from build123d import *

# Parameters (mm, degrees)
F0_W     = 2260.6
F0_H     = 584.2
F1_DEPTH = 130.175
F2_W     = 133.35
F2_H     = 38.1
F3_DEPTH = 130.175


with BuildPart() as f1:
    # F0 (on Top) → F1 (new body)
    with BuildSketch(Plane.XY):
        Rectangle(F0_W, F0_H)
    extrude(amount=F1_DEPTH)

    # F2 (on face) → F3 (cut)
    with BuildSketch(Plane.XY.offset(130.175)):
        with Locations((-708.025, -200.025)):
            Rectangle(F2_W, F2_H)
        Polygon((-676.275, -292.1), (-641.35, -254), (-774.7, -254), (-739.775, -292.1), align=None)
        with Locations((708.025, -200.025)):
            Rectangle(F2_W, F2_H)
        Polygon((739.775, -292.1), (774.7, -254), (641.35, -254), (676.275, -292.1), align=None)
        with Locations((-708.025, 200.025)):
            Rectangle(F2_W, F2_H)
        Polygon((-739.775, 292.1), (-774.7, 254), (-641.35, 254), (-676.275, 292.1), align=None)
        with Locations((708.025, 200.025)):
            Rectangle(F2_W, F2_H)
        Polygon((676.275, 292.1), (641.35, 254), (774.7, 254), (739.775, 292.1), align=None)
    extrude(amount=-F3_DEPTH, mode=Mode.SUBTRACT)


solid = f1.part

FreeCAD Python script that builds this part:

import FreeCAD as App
import Part
import Sketcher
from FreeCAD import Vector
Q = App.Units.Quantity


def add_polygon(sketch, points):
    """Adds a closed chain of lines whose ends are joined by coincident constraints."""
    first, n = sketch.GeometryCount, len(points)
    for a, b in zip(points, points[1:] + points[:1]):
        sketch.addGeometry(Part.LineSegment(App.Vector(*a, 0), App.Vector(*b, 0)), False)
    for i in range(n):
        sketch.addConstraint(Sketcher.Constraint("Coincident", first + i, 2, first + (i + 1) % n, 1))

doc = App.newDocument("Part")
body = doc.addObject("PartDesign::Body", "Body")

# Sketch on XY plane
sketch1 = body.newObject("Sketcher::SketchObject", "Sketch")
sketch1.AttachmentSupport = (doc.getObject("XY_Plane"), [""])
sketch1.MapMode = "FlatFace"
add_polygon(sketch1, [(-1130.3, 292.1), (-1130.3, -292.1), (1130.3, -292.1), (1130.3, 292.1)])  # lines 0-3
sketch1.addConstraint([
    Sketcher.Constraint("Vertical", 0),
    Sketcher.Constraint("Horizontal", 1),
    Sketcher.Constraint("Vertical", 2),
    Sketcher.Constraint("Horizontal", 3),
    Sketcher.Constraint("Symmetric", 0, 2, 2, 2, -1, 1),
    Sketcher.Constraint("DistanceX", 1, 1, 1, 2, Q("89 in")),
    Sketcher.Constraint("DistanceY", 0, 2, 0, 1, Q("23 in")),
])
pad1 = body.newObject("PartDesign::Pad", "Pad")
pad1.Profile = sketch1
pad1.Length = Q("5.125 in")

# Sketch on XY plane
sketch2 = body.newObject("Sketcher::SketchObject", "Sketch001")
sketch2.AttachmentSupport = (doc.getObject("XY_Plane"), [""])
sketch2.MapMode = "FlatFace"
sketch2.AttachmentOffset = App.Placement(Vector(0, 0, 5.125 * 25.4), App.Rotation())
add_polygon(sketch2, [(-774.7, -180.975), (-774.7, -219.075), (-641.35, -219.075), (-641.35, -180.975)])  # lines 0-3
add_polygon(sketch2, [(-676.275, -292.1), (-641.35, -254), (-774.7, -254), (-739.775, -292.1)])  # lines 4-7
add_polygon(sketch2, [(641.35, -180.975), (641.35, -219.075), (774.7, -219.075), (774.7, -180.975)])  # lines 8-11
add_polygon(sketch2, [(739.775, -292.1), (774.7, -254), (641.35, -254), (676.275, -292.1)])  # lines 12-15
add_polygon(sketch2, [(-774.7, 219.075), (-774.7, 180.975), (-641.35, 180.975), (-641.35, 219.075)])  # lines 16-19
add_polygon(sketch2, [(-739.775, 292.1), (-774.7, 254), (-641.35, 254), (-676.275, 292.1)])  # lines 20-23
add_polygon(sketch2, [(641.35, 219.075), (641.35, 180.975), (774.7, 180.975), (774.7, 219.075)])  # lines 24-27
add_polygon(sketch2, [(676.275, 292.1), (641.35, 254), (774.7, 254), (739.775, 292.1)])  # lines 28-31
sketch2.addConstraint([
    Sketcher.Constraint("Vertical", 0),
    Sketcher.Constraint("Horizontal", 1),
    Sketcher.Constraint("Vertical", 2),
    Sketcher.Constraint("Horizontal", 3),
    Sketcher.Constraint("Horizontal", 5),
    Sketcher.Constraint("Horizontal", 7),
    Sketcher.Constraint("Vertical", 8),
    Sketcher.Constraint("Horizontal", 9),
    Sketcher.Constraint("Vertical", 10),
    Sketcher.Constraint("Horizontal", 11),
    Sketcher.Constraint("Horizontal", 13),
    Sketcher.Constraint("Horizontal", 15),
    Sketcher.Constraint("Vertical", 16),
    Sketcher.Constraint("Horizontal", 17),
    Sketcher.Constraint("Vertical", 18),
    Sketcher.Constraint("Horizontal", 19),
    Sketcher.Constraint("Horizontal", 21),
    Sketcher.Constraint("Horizontal", 23),
    Sketcher.Constraint("Vertical", 24),
    Sketcher.Constraint("Horizontal", 25),
    Sketcher.Constraint("Vertical", 26),
    Sketcher.Constraint("Horizontal", 27),
    Sketcher.Constraint("Horizontal", 29),
    Sketcher.Constraint("Horizontal", 31),
    Sketcher.Constraint("Symmetric", 10, 2, 16, 2, -1, 1),
    Sketcher.Constraint("Symmetric", 8, 2, 18, 2, -1, 1),
    Sketcher.Constraint("Symmetric", 12, 2, 20, 2, -1, 1),
    Sketcher.Constraint("Symmetric", 14, 2, 22, 2, -1, 1),
    Sketcher.Constraint("Symmetric", 2, 2, 24, 2, -1, 1),
    Sketcher.Constraint("Symmetric", 0, 2, 26, 2, -1, 1),
    Sketcher.Constraint("Symmetric", 4, 2, 28, 2, -1, 1),
    Sketcher.Constraint("Symmetric", 6, 2, 30, 2, -1, 1),
    Sketcher.Constraint("Symmetric", 1, 2, 8, 2, -2),
    Sketcher.Constraint("Symmetric", 3, 2, 10, 2, -2),
    Sketcher.Constraint("Symmetric", 5, 2, 12, 2, -2),
    Sketcher.Constraint("Symmetric", 7, 2, 14, 2, -2),
    Sketcher.Constraint("Parallel", 4, 12),
    Sketcher.Constraint("Parallel", 6, 14),
    Sketcher.Constraint("Parallel", 12, 20),
    Sketcher.Constraint("Parallel", 14, 22),
    Sketcher.Constraint("Parallel", 20, 28),
    Sketcher.Constraint("Parallel", 22, 30),
    Sketcher.Constraint("Vertical", 2, 2, 4, 2),
    Sketcher.Constraint("Vertical", 3, 2, 5, 2),
    Sketcher.Constraint("Vertical", 11, 2, 13, 2),
    Sketcher.Constraint("DistanceX", 7, 1, 7, 2, Q("2.5 in")),
    Sketcher.Constraint("DistanceY", 0, 2, 0, 1, Q("1.5 in")),
    Sketcher.Constraint("DistanceY", 4, 2, -1, 1, Q("10 in")),
    Sketcher.Constraint("DistanceX", 1, 1, 1, 2, Q("5.25 in")),
    Sketcher.Constraint("DistanceX", 0, 2, -1, 1, Q("30.5 in")),
    Sketcher.Constraint("DistanceY", 6, 2, -1, 1, Q("11.5 in")),
    Sketcher.Constraint("DistanceY", 3, 2, 16, 2, Q("14.25 in")),
])
pocket1 = body.newObject("PartDesign::Pocket", "Pocket")
pocket1.Profile = sketch2
pocket1.Length = Q("5.125 in")

doc.recompute()
